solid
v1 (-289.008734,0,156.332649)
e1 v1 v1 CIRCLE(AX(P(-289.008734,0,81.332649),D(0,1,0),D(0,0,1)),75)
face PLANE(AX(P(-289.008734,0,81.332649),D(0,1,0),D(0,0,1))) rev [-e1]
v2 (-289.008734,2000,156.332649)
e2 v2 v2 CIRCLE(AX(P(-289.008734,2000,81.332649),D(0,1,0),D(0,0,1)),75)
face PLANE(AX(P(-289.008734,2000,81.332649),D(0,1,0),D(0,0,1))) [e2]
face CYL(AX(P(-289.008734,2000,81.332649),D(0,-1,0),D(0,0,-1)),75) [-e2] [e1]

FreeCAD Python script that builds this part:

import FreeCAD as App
import Part
import Sketcher

V = App.Vector

doc = App.newDocument("Part")
body = doc.addObject("PartDesign::Body", "Body")

# Sketch on XZ plane
sketch1 = body.newObject("Sketcher::SketchObject", "Sketch")
sketch1.AttachmentSupport = (doc.getObject("XZ_Plane"), [""])
sketch1.MapMode = "FlatFace"
sketch1.addGeometry(Part.Circle(V(-289, 81, 0), V(0, 0, 1), 75), False)
sketch1.addConstraint(Sketcher.Constraint("Diameter", 0, 150.0))
sketch1.addConstraint(Sketcher.Constraint("DistanceY", -1, 1, 0, 3, 81.332649))
sketch1.addConstraint(Sketcher.Constraint("DistanceX", 0, 3, -1, 1, 289.008734))
pad1 = body.newObject("PartDesign::Pad", "Pad")
pad1.Profile = sketch1
pad1.Length = 2000
pad1.Reversed = True

doc.recompute()
